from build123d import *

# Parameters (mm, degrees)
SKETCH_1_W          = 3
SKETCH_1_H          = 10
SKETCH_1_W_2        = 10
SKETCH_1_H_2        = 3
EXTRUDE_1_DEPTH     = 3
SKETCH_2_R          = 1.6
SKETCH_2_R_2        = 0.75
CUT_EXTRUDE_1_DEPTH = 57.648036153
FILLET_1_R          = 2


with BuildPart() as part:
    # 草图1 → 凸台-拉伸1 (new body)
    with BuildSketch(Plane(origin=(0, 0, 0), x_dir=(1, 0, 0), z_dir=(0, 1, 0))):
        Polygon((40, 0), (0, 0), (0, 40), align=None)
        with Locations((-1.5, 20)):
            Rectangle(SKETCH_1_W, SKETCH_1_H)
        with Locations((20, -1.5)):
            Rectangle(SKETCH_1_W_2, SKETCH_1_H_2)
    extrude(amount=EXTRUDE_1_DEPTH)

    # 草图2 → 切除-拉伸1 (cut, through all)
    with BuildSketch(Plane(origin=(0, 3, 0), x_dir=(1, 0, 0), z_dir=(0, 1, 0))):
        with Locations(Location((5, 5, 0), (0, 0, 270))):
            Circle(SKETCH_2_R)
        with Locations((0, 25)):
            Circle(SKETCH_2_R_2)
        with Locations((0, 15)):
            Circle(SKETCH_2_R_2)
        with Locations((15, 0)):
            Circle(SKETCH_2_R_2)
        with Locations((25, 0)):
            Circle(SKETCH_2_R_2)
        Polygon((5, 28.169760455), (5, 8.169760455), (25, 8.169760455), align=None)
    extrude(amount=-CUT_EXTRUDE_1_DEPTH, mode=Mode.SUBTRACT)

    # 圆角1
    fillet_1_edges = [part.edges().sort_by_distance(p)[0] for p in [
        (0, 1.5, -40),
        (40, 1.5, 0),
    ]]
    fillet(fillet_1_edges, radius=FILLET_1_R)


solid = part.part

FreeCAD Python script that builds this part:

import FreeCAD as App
import Part
import Sketcher
from FreeCAD import Vector


def edges_at(feature, points):
    """Names of the edges that pass closest to the given points."""
    edges = feature.Shape.Edges
    near = lambda p: min(range(len(edges)), key=lambda i: edges[i].distToShape(Part.Vertex(*p))[0])
    return sorted({f"Edge{near(p) + 1}" for p in points})

doc = App.newDocument("Part")
params = doc.addObject("Spreadsheet::Sheet", "Params")
for row, (alias, value) in enumerate([
    ("sketch1_width", "15 mm"),
    ("sketch1_width2", "3 mm"),
    ("sketch1_width3", "10 mm"),
    ("pad1_length", "3 mm"),
    ("sketch2_diameter", "3.2 mm"),
    ("sketch2_diameter2", "1.5 mm"),
    ("sketch2_width", "20 mm"),
    ("fillet_radius", "2 mm"),
], start=1):
    params.set(f"A{row}", alias)
    params.set(f"B{row}", "=" + value)
    params.setAlias(f"B{row}", alias)

body = doc.addObject("PartDesign::Body", "Body")

# Sketch on XZ plane
sketch1 = doc.addObject("Sketcher::SketchObject", "Sketch")
body.addObject(sketch1)
sketch1.AttachmentSupport = (doc.XZ_Plane, [""])
sketch1.MapMode = "FlatFace"
sketch1.addGeometry(Part.LineSegment(Vector(25, 0, 0), Vector(40, 0, 0)), False)
sketch1.addGeometry(Part.LineSegment(Vector(40, 0, 0), Vector(0, -40, 0)), False)
sketch1.addGeometry(Part.LineSegment(Vector(0, -40, 0), Vector(0, -25, 0)), False)
sketch1.addGeometry(Part.LineSegment(Vector(0, -25, 0), Vector(-3, -25, 0)), False)
sketch1.addGeometry(Part.LineSegment(Vector(-3, -25, 0), Vector(-3, -15, 0)), False)
sketch1.addGeometry(Part.LineSegment(Vector(-3, -15, 0), Vector(0, -15, 0)), False)
sketch1.addGeometry(Part.LineSegment(Vector(0, -15, 0), Vector(0, 0, 0)), False)
sketch1.addGeometry(Part.LineSegment(Vector(0, 0, 0), Vector(15, 0, 0)), False)
sketch1.addGeometry(Part.LineSegment(Vector(15, 0, 0), Vector(15, 3, 0)), False)
sketch1.addGeometry(Part.LineSegment(Vector(15, 3, 0), Vector(25, 3, 0)), False)
sketch1.addGeometry(Part.LineSegment(Vector(25, 3, 0), Vector(25, 0, 0)), False)
sketch1.addConstraint(Sketcher.Constraint("Coincident", 0, 2, 1, 1))
sketch1.addConstraint(Sketcher.Constraint("Coincident", 1, 2, 2, 1))
sketch1.addConstraint(Sketcher.Constraint("Coincident", 2, 2, 3, 1))
sketch1.addConstraint(Sketcher.Constraint("Coincident", 3, 2, 4, 1))
sketch1.addConstraint(Sketcher.Constraint("Coincident", 4, 2, 5, 1))
sketch1.addConstraint(Sketcher.Constraint("Coincident", 5, 2, 6, 1))
sketch1.addConstraint(Sketcher.Constraint("Coincident", 6, 2, 7, 1))
sketch1.addConstraint(Sketcher.Constraint("Coincident", 7, 2, 8, 1))
sketch1.addConstraint(Sketcher.Constraint("Coincident", 8, 2, 9, 1))
sketch1.addConstraint(Sketcher.Constraint("Coincident", 9, 2, 10, 1))
sketch1.addConstraint(Sketcher.Constraint("Coincident", 10, 2, 0, 1))
sketch1.addConstraint(Sketcher.Constraint("Horizontal", 0))
sketch1.addConstraint(Sketcher.Constraint("Vertical", 2))
sketch1.addConstraint(Sketcher.Constraint("Horizontal", 3))
sketch1.addConstraint(Sketcher.Constraint("Vertical", 4))
sketch1.addConstraint(Sketcher.Constraint("Horizontal", 5))
sketch1.addConstraint(Sketcher.Constraint("Vertical", 6))
sketch1.addConstraint(Sketcher.Constraint("Horizontal", 7))
sketch1.addConstraint(Sketcher.Constraint("Vertical", 8))
sketch1.addConstraint(Sketcher.Constraint("Horizontal", 9))
sketch1.addConstraint(Sketcher.Constraint("Vertical", 10))
sketch1.addConstraint(Sketcher.Constraint("Coincident", 6, 2, -1, 1))
sketch1.addConstraint(Sketcher.Constraint("PointOnObject", 0, 2, -1))
sketch1.addConstraint(Sketcher.Constraint("PointOnObject", 1, 2, -2))
sketch1.addConstraint(Sketcher.Constraint("Equal", 0, 7))
sketch1.addConstraint(Sketcher.Constraint("Equal", 7, 2))
sketch1.addConstraint(Sketcher.Constraint("Equal", 9, 4))
sketch1.addConstraint(Sketcher.Constraint("Equal", 2, 6))
sketch1.addConstraint(Sketcher.Constraint("Equal", 5, 8))
sketch1.addConstraint(Sketcher.Constraint("DistanceX", 0, 1, 0, 2, 15.0))
sketch1.addConstraint(Sketcher.Constraint("DistanceX", 3, 2, 3, 1, 3.0))
sketch1.addConstraint(Sketcher.Constraint("DistanceX", 9, 1, 9, 2, 10.0))
sketch1.setExpression("Constraints[29]", "Params.sketch1_width")
sketch1.setExpression("Constraints[30]", "Params.sketch1_width2")
sketch1.setExpression("Constraints[31]", "Params.sketch1_width3")
pad1 = doc.addObject("PartDesign::Pad", "Pad")
body.addObject(pad1)
pad1.Profile = sketch1
pad1.setExpression("Length", "Params.pad1_length")
pad1.Reversed = True

# Sketch on XZ plane
sketch2 = doc.addObject("Sketcher::SketchObject", "Sketch001")
body.addObject(sketch2)
sketch2.AttachmentSupport = (doc.XZ_Plane, [""])
sketch2.MapMode = "FlatFace"
sketch2.AttachmentOffset = App.Placement(Vector(0, 0, -3), App.Rotation())
sketch2.addGeometry(Part.Circle(Vector(5, -5, 0), Vector(0, 0, 1), 1.6), False)
sketch2.addGeometry(Part.Circle(Vector(0, -25, 0), Vector(0, 0, 1), 0.75), False)
sketch2.addGeometry(Part.Circle(Vector(0, -15, 0), Vector(0, 0, 1), 0.75), False)
sketch2.addGeometry(Part.Circle(Vector(15, 0, 0), Vector(0, 0, 1), 0.75), False)
sketch2.addGeometry(Part.Circle(Vector(25, 0, 0), Vector(0, 0, 1), 0.75), False)
sketch2.addGeometry(Part.LineSegment(Vector(5, -28.16976, 0), Vector(5, -8.16976, 0)), False)
sketch2.addGeometry(Part.LineSegment(Vector(5, -8.16976, 0), Vector(25, -8.16976, 0)), False)
sketch2.addGeometry(Part.LineSegment(Vector(25, -8.16976, 0), Vector(5, -28.16976, 0)), False)
sketch2.addConstraint(Sketcher.Constraint("Coincident", 5, 2, 6, 1))
sketch2.addConstraint(Sketcher.Constraint("Coincident", 6, 2, 7, 1))
sketch2.addConstraint(Sketcher.Constraint("Coincident", 7, 2, 5, 1))
sketch2.addConstraint(Sketcher.Constraint("Vertical", 5))
sketch2.addConstraint(Sketcher.Constraint("Horizontal", 6))
sketch2.addConstraint(Sketcher.Constraint("Equal", 1, 2))
sketch2.addConstraint(Sketcher.Constraint("Equal", 2, 3))
sketch2.addConstraint(Sketcher.Constraint("Equal", 3, 4))
sketch2.addConstraint(Sketcher.Constraint("PointOnObject", 1, 3, -2))
sketch2.addConstraint(Sketcher.Constraint("PointOnObject", 2, 3, -2))
sketch2.addConstraint(Sketcher.Constraint("PointOnObject", 3, 3, -1))
sketch2.addConstraint(Sketcher.Constraint("PointOnObject", 4, 3, -1))
sketch2.addConstraint(Sketcher.Constraint("Vertical", 0, 3, 5, 2))
sketch2.addConstraint(Sketcher.Constraint("Vertical", 4, 3, 6, 2))
sketch2.addConstraint(Sketcher.Constraint("Equal", 6, 5))
sketch2.addConstraint(Sketcher.Constraint("Diameter", 0, 3.2))
sketch2.addConstraint(Sketcher.Constraint("Diameter", 1, 1.5))
sketch2.addConstraint(Sketcher.Constraint("DistanceX", 6, 1, 6, 2, 20.0))
sketch2.addConstraint(Sketcher.Constraint("DistanceX", -1, 1, 0, 3, 5.0))
sketch2.addConstraint(Sketcher.Constraint("DistanceY", 0, 3, -1, 1, 5.0))
sketch2.addConstraint(Sketcher.Constraint("DistanceY", 1, 3, -1, 1, 25.0))
sketch2.addConstraint(Sketcher.Constraint("DistanceY", 2, 3, -1, 1, 15.0))
sketch2.addConstraint(Sketcher.Constraint("DistanceX", -1, 1, 3, 3, 15.0))
sketch2.addConstraint(Sketcher.Constraint("DistanceY", 5, 2, -1, 1, 8.16976))
sketch2.setExpression("Constraints[15]", "Params.sketch2_diameter")
sketch2.setExpression("Constraints[16]", "Params.sketch2_diameter2")
sketch2.setExpression("Constraints[17]", "Params.sketch2_width")
pocket1 = doc.addObject("PartDesign::Pocket", "Pocket")
body.addObject(pocket1)
pocket1.Profile = sketch2
pocket1.Type = "ThroughAll"
pocket1.Reversed = True
doc.recompute()

fillet = doc.addObject("PartDesign::Fillet", "Fillet")
body.addObject(fillet)
fillet.Base = (pocket1, edges_at(pocket1, [(0, 1.5, -40), (40, 1.5, 0)]))
fillet.setExpression("Radius", "Params.fillet_radius")

doc.recompute()
